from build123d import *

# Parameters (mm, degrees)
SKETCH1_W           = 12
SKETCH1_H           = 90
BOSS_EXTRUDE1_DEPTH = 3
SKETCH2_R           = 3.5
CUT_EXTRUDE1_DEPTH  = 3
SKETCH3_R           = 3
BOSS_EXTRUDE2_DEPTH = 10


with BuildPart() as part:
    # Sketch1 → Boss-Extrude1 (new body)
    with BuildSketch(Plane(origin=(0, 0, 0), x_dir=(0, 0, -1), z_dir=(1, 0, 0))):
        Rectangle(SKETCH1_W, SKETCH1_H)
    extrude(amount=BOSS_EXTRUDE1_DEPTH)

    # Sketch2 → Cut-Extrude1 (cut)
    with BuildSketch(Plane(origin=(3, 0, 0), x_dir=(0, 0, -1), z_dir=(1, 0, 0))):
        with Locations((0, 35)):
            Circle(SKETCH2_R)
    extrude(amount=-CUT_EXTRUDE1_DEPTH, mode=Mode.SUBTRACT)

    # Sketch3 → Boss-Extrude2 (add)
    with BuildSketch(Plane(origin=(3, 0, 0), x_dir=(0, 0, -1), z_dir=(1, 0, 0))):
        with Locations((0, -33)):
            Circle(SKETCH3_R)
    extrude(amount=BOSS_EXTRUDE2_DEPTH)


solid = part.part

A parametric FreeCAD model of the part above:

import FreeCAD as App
import Part
import Sketcher

V = App.Vector
Q = App.Units.Quantity

doc = App.newDocument("Part")
body = doc.addObject("PartDesign::Body", "Body")

# Sketch on YZ plane
sketch1 = doc.addObject("Sketcher::SketchObject", "Sketch")
body.addObject(sketch1)
sketch1.AttachmentSupport = (doc.YZ_Plane, [""])
sketch1.MapMode = "FlatFace"
sketch1.addGeometry(Part.LineSegment(V(45, 6, 0), V(-45, 6, 0)), False)
sketch1.addGeometry(Part.LineSegment(V(-45, 6, 0), V(-45, -6, 0)), False)
sketch1.addGeometry(Part.LineSegment(V(-45, -6, 0), V(45, -6, 0)), False)
sketch1.addGeometry(Part.LineSegment(V(45, -6, 0), V(45, 6, 0)), False)
sketch1.addConstraint(Sketcher.Constraint("Coincident", 0, 2, 1, 1))
sketch1.addConstraint(Sketcher.Constraint("Coincident", 1, 2, 2, 1))
sketch1.addConstraint(Sketcher.Constraint("Coincident", 2, 2, 3, 1))
sketch1.addConstraint(Sketcher.Constraint("Coincident", 3, 2, 0, 1))
sketch1.addConstraint(Sketcher.Constraint("Horizontal", 0))
sketch1.addConstraint(Sketcher.Constraint("Vertical", 1))
sketch1.addConstraint(Sketcher.Constraint("Horizontal", 2))
sketch1.addConstraint(Sketcher.Constraint("Vertical", 3))
sketch1.addConstraint(Sketcher.Constraint("Symmetric", 0, 2, 2, 2, -1, 1))
sketch1.addConstraint(Sketcher.Constraint("DistanceX", 0, 2, 0, 1, Q("90 mm")))
sketch1.addConstraint(Sketcher.Constraint("DistanceY", 1, 2, 1, 1, Q("12 mm")))
pad1 = doc.addObject("PartDesign::Pad", "Pad")
body.addObject(pad1)
pad1.Profile = sketch1
pad1.Length = 3

# Sketch on YZ plane
sketch2 = doc.addObject("Sketcher::SketchObject", "Sketch001")
body.addObject(sketch2)
sketch2.AttachmentSupport = (doc.YZ_Plane, [""])
sketch2.MapMode = "FlatFace"
sketch2.AttachmentOffset = App.Placement(V(0, 0, 3), App.Rotation())
sketch2.addGeometry(Part.Circle(V(35, 0, 0), V(0, 0, 1), 3.5), False)
sketch2.addConstraint(Sketcher.Constraint("PointOnObject", 0, 3, -1))
sketch2.addConstraint(Sketcher.Constraint("Diameter", 0, Q("7 mm")))
sketch2.addConstraint(Sketcher.Constraint("DistanceX", -1, 1, 0, 3, Q("35 mm")))
pocket1 = doc.addObject("PartDesign::Pocket", "Pocket")
body.addObject(pocket1)
pocket1.Profile = sketch2
pocket1.Length = 3

# Sketch on YZ plane
sketch3 = doc.addObject("Sketcher::SketchObject", "Sketch002")
body.addObject(sketch3)
sketch3.AttachmentSupport = (doc.YZ_Plane, [""])
sketch3.MapMode = "FlatFace"
sketch3.AttachmentOffset = App.Placement(V(0, 0, 3), App.Rotation())
sketch3.addGeometry(Part.Circle(V(-33, 0, 0), V(0, 0, 1), 3), False)
sketch3.addConstraint(Sketcher.Constraint("PointOnObject", 0, 3, -1))
sketch3.addConstraint(Sketcher.Constraint("Diameter", 0, Q("6 mm")))
sketch3.addConstraint(Sketcher.Constraint("DistanceX", 0, 3, -1, 1, Q("33 mm")))
pad2 = doc.addObject("PartDesign::Pad", "Pad001")
body.addObject(pad2)
pad2.Profile = sketch3
pad2.Length = 10

doc.recompute()
